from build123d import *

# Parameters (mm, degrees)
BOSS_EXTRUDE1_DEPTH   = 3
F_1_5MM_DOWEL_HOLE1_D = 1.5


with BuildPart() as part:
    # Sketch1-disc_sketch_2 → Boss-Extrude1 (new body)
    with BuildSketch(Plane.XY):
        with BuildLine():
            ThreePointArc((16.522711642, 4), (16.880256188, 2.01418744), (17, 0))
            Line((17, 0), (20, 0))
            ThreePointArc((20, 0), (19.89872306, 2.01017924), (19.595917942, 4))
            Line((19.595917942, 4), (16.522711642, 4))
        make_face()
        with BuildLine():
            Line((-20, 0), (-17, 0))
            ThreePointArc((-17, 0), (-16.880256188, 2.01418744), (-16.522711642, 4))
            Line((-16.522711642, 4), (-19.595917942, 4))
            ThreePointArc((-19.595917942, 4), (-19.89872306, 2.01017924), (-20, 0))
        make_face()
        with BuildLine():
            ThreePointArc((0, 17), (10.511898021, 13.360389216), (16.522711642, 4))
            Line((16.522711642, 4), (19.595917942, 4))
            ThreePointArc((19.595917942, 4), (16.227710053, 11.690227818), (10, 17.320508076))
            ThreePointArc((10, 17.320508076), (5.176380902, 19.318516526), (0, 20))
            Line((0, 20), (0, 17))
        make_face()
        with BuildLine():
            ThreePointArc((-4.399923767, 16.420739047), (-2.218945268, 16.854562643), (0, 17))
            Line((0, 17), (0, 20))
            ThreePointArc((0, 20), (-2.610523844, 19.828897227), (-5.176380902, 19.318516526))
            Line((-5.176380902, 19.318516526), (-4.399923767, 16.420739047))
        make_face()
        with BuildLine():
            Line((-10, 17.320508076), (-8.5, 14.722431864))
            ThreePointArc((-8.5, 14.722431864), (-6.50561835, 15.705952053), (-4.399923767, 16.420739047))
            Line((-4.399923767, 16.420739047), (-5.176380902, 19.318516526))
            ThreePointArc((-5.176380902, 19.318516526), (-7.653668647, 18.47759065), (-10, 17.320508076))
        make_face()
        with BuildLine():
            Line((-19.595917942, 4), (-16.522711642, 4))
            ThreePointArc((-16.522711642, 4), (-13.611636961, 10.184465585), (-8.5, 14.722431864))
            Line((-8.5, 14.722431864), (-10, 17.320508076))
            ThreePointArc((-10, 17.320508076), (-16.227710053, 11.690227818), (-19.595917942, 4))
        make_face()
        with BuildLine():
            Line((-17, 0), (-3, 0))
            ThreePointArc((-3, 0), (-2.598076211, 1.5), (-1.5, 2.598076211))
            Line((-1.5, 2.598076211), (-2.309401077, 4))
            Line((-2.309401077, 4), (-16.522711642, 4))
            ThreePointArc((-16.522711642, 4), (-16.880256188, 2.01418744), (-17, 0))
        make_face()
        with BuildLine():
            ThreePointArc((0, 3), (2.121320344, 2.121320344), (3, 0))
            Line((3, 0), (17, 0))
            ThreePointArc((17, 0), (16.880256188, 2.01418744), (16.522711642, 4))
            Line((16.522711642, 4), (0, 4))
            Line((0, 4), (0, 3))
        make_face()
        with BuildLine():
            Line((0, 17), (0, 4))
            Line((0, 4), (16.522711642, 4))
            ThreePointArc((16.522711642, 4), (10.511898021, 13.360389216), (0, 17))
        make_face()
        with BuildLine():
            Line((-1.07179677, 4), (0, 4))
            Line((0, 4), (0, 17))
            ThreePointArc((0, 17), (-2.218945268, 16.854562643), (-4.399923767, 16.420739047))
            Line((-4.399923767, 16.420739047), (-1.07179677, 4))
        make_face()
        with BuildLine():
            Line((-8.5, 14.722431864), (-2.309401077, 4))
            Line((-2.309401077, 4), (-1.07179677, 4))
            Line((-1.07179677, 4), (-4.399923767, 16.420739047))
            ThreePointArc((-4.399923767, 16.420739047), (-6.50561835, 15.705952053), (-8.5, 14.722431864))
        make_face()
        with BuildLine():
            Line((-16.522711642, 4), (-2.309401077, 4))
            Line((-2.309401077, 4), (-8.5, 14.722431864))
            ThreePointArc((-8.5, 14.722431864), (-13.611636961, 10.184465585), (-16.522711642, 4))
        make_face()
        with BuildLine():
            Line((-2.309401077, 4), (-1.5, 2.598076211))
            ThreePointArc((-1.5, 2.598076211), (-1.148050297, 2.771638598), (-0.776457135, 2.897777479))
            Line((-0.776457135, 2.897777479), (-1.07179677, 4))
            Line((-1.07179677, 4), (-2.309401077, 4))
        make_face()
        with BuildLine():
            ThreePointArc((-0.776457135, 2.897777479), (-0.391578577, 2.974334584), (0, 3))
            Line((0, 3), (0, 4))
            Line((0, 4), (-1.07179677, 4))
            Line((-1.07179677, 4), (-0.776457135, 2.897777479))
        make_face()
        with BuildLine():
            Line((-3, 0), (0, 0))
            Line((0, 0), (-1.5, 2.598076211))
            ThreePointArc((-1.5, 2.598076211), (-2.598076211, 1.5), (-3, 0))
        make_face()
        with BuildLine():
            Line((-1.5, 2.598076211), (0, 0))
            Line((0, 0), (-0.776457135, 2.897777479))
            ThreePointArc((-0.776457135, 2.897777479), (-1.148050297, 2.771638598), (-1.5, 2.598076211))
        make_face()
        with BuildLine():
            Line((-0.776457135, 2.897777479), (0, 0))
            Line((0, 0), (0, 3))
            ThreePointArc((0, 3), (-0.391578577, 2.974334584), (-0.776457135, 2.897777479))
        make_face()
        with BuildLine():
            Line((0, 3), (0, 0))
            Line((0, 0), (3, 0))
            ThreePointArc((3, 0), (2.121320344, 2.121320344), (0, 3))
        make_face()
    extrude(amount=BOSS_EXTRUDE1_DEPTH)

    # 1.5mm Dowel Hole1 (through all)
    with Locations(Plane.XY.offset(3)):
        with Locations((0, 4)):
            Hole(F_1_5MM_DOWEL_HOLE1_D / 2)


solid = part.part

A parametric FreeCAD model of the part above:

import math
import FreeCAD as App
import Part
import Sketcher
from FreeCAD import Vector
Q = App.Units.Quantity

doc = App.newDocument("Part")
params = doc.addObject("Spreadsheet::Sheet", "Params")
for row, (alias, value) in enumerate([
    ("sketch1_radius", "20 mm"),
    ("pad1_length", "3 mm"),
    ("sketch2_diameter", "1.5 mm"),
    ("hole_diameter", "1.5 mm"),
], start=1):
    params.set(f"A{row}", alias)
    params.set(f"B{row}", "=" + value)
    params.setAlias(f"B{row}", alias)

body = doc.addObject("PartDesign::Body", "Body")

sketch1 = doc.addObject("Sketcher::SketchObject", "Sketch")
body.addObject(sketch1)
sketch1.AttachmentSupport = (doc.XY_Plane, [""])
sketch1.MapMode = "FlatFace"
sketch1.addGeometry([
    Part.ArcOfCircle(Part.Circle(Vector(0, 0, 0), Vector(0, 0, 1), 20), math.radians(0), math.radians(11.536959)),
    Part.ArcOfCircle(Part.Circle(Vector(0, 0, 0), Vector(0, 0, 1), 20), math.radians(11.536959), math.radians(60)),
    Part.ArcOfCircle(Part.Circle(Vector(0, 0, 0), Vector(0, 0, 1), 20), math.radians(60), math.radians(90)),
    Part.ArcOfCircle(Part.Circle(Vector(0, 0, 0), Vector(0, 0, 1), 20), math.radians(90), math.radians(105)),
    Part.ArcOfCircle(Part.Circle(Vector(0, 0, 0), Vector(0, 0, 1), 20), math.radians(105), math.radians(120)),
    Part.ArcOfCircle(Part.Circle(Vector(0, 0, 0), Vector(0, 0, 1), 20), math.radians(120), math.radians(168.463041)),
    Part.ArcOfCircle(Part.Circle(Vector(0, 0, 0), Vector(0, 0, 1), 20), math.radians(168.463041), math.radians(180)),
    Part.LineSegment(Vector(-20, 0, 0), Vector(20, 0, 0)),
], False)
sketch1.addConstraint([
    Sketcher.Constraint("Tangent", 0, 2, 1, 1),
    Sketcher.Constraint("Tangent", 1, 2, 2, 1),
    Sketcher.Constraint("Tangent", 2, 2, 3, 1),
    Sketcher.Constraint("Tangent", 3, 2, 4, 1),
    Sketcher.Constraint("Tangent", 4, 2, 5, 1),
    Sketcher.Constraint("Tangent", 5, 2, 6, 1),
    Sketcher.Constraint("Coincident", 6, 2, 7, 1),
    Sketcher.Constraint("Coincident", 7, 2, 0, 1),
    Sketcher.Constraint("Horizontal", 7),
    Sketcher.Constraint("Coincident", 0, 3, -1, 1),
    Sketcher.Constraint("Coincident", 2, 3, -1, 1),
    Sketcher.Constraint("Coincident", 4, 3, -1, 1),
    Sketcher.Constraint("Coincident", 6, 3, -1, 1),
    Sketcher.Constraint("PointOnObject", 2, 2, -2),
    Sketcher.Constraint("PointOnObject", 6, 2, -1),
    Sketcher.Constraint("Horizontal", 1, 2, 4, 2),
    Sketcher.Constraint("Horizontal", 0, 2, 5, 2),
    Sketcher.Constraint("Radius", 0, Q("20 mm")),
    Sketcher.Constraint("DistanceY", -1, 1, 0, 2, Q("4 mm")),
    Sketcher.Constraint("DistanceX", -1, 1, 1, 2, Q("10 mm")),
    Sketcher.Constraint("DistanceX", 3, 2, -1, 1, Q("5.176381 mm")),
])
sketch1.setExpression("Constraints[17]", "Params.sketch1_radius")
pad1 = doc.addObject("PartDesign::Pad", "Pad")
body.addObject(pad1)
pad1.Profile = sketch1
pad1.setExpression("Length", "Params.pad1_length")

sketch2 = doc.addObject("Sketcher::SketchObject", "Sketch001")
body.addObject(sketch2)
sketch2.AttachmentSupport = (doc.XY_Plane, [""])
sketch2.MapMode = "FlatFace"
sketch2.AttachmentOffset = App.Placement(Vector(0, 0, 3), App.Rotation())
sketch2.addGeometry(Part.Circle(Vector(0, 4, 0), Vector(0, 0, 1), 0.75), False)
sketch2.addConstraint([
    Sketcher.Constraint("PointOnObject", 0, 3, -2),
    Sketcher.Constraint("Diameter", 0, Q("1.5 mm")),
    Sketcher.Constraint("DistanceY", -1, 1, 0, 3, Q("4 mm")),
])
sketch2.setExpression("Constraints[1]", "Params.sketch2_diameter")
doc.recompute()
hole = doc.addObject("PartDesign::Hole", "Hole")
body.addObject(hole)
hole.Profile = sketch2
hole.ThreadType = "None"
hole.setExpression("Diameter", "Params.hole_diameter")
hole.DepthType = "ThroughAll"

doc.recompute()
